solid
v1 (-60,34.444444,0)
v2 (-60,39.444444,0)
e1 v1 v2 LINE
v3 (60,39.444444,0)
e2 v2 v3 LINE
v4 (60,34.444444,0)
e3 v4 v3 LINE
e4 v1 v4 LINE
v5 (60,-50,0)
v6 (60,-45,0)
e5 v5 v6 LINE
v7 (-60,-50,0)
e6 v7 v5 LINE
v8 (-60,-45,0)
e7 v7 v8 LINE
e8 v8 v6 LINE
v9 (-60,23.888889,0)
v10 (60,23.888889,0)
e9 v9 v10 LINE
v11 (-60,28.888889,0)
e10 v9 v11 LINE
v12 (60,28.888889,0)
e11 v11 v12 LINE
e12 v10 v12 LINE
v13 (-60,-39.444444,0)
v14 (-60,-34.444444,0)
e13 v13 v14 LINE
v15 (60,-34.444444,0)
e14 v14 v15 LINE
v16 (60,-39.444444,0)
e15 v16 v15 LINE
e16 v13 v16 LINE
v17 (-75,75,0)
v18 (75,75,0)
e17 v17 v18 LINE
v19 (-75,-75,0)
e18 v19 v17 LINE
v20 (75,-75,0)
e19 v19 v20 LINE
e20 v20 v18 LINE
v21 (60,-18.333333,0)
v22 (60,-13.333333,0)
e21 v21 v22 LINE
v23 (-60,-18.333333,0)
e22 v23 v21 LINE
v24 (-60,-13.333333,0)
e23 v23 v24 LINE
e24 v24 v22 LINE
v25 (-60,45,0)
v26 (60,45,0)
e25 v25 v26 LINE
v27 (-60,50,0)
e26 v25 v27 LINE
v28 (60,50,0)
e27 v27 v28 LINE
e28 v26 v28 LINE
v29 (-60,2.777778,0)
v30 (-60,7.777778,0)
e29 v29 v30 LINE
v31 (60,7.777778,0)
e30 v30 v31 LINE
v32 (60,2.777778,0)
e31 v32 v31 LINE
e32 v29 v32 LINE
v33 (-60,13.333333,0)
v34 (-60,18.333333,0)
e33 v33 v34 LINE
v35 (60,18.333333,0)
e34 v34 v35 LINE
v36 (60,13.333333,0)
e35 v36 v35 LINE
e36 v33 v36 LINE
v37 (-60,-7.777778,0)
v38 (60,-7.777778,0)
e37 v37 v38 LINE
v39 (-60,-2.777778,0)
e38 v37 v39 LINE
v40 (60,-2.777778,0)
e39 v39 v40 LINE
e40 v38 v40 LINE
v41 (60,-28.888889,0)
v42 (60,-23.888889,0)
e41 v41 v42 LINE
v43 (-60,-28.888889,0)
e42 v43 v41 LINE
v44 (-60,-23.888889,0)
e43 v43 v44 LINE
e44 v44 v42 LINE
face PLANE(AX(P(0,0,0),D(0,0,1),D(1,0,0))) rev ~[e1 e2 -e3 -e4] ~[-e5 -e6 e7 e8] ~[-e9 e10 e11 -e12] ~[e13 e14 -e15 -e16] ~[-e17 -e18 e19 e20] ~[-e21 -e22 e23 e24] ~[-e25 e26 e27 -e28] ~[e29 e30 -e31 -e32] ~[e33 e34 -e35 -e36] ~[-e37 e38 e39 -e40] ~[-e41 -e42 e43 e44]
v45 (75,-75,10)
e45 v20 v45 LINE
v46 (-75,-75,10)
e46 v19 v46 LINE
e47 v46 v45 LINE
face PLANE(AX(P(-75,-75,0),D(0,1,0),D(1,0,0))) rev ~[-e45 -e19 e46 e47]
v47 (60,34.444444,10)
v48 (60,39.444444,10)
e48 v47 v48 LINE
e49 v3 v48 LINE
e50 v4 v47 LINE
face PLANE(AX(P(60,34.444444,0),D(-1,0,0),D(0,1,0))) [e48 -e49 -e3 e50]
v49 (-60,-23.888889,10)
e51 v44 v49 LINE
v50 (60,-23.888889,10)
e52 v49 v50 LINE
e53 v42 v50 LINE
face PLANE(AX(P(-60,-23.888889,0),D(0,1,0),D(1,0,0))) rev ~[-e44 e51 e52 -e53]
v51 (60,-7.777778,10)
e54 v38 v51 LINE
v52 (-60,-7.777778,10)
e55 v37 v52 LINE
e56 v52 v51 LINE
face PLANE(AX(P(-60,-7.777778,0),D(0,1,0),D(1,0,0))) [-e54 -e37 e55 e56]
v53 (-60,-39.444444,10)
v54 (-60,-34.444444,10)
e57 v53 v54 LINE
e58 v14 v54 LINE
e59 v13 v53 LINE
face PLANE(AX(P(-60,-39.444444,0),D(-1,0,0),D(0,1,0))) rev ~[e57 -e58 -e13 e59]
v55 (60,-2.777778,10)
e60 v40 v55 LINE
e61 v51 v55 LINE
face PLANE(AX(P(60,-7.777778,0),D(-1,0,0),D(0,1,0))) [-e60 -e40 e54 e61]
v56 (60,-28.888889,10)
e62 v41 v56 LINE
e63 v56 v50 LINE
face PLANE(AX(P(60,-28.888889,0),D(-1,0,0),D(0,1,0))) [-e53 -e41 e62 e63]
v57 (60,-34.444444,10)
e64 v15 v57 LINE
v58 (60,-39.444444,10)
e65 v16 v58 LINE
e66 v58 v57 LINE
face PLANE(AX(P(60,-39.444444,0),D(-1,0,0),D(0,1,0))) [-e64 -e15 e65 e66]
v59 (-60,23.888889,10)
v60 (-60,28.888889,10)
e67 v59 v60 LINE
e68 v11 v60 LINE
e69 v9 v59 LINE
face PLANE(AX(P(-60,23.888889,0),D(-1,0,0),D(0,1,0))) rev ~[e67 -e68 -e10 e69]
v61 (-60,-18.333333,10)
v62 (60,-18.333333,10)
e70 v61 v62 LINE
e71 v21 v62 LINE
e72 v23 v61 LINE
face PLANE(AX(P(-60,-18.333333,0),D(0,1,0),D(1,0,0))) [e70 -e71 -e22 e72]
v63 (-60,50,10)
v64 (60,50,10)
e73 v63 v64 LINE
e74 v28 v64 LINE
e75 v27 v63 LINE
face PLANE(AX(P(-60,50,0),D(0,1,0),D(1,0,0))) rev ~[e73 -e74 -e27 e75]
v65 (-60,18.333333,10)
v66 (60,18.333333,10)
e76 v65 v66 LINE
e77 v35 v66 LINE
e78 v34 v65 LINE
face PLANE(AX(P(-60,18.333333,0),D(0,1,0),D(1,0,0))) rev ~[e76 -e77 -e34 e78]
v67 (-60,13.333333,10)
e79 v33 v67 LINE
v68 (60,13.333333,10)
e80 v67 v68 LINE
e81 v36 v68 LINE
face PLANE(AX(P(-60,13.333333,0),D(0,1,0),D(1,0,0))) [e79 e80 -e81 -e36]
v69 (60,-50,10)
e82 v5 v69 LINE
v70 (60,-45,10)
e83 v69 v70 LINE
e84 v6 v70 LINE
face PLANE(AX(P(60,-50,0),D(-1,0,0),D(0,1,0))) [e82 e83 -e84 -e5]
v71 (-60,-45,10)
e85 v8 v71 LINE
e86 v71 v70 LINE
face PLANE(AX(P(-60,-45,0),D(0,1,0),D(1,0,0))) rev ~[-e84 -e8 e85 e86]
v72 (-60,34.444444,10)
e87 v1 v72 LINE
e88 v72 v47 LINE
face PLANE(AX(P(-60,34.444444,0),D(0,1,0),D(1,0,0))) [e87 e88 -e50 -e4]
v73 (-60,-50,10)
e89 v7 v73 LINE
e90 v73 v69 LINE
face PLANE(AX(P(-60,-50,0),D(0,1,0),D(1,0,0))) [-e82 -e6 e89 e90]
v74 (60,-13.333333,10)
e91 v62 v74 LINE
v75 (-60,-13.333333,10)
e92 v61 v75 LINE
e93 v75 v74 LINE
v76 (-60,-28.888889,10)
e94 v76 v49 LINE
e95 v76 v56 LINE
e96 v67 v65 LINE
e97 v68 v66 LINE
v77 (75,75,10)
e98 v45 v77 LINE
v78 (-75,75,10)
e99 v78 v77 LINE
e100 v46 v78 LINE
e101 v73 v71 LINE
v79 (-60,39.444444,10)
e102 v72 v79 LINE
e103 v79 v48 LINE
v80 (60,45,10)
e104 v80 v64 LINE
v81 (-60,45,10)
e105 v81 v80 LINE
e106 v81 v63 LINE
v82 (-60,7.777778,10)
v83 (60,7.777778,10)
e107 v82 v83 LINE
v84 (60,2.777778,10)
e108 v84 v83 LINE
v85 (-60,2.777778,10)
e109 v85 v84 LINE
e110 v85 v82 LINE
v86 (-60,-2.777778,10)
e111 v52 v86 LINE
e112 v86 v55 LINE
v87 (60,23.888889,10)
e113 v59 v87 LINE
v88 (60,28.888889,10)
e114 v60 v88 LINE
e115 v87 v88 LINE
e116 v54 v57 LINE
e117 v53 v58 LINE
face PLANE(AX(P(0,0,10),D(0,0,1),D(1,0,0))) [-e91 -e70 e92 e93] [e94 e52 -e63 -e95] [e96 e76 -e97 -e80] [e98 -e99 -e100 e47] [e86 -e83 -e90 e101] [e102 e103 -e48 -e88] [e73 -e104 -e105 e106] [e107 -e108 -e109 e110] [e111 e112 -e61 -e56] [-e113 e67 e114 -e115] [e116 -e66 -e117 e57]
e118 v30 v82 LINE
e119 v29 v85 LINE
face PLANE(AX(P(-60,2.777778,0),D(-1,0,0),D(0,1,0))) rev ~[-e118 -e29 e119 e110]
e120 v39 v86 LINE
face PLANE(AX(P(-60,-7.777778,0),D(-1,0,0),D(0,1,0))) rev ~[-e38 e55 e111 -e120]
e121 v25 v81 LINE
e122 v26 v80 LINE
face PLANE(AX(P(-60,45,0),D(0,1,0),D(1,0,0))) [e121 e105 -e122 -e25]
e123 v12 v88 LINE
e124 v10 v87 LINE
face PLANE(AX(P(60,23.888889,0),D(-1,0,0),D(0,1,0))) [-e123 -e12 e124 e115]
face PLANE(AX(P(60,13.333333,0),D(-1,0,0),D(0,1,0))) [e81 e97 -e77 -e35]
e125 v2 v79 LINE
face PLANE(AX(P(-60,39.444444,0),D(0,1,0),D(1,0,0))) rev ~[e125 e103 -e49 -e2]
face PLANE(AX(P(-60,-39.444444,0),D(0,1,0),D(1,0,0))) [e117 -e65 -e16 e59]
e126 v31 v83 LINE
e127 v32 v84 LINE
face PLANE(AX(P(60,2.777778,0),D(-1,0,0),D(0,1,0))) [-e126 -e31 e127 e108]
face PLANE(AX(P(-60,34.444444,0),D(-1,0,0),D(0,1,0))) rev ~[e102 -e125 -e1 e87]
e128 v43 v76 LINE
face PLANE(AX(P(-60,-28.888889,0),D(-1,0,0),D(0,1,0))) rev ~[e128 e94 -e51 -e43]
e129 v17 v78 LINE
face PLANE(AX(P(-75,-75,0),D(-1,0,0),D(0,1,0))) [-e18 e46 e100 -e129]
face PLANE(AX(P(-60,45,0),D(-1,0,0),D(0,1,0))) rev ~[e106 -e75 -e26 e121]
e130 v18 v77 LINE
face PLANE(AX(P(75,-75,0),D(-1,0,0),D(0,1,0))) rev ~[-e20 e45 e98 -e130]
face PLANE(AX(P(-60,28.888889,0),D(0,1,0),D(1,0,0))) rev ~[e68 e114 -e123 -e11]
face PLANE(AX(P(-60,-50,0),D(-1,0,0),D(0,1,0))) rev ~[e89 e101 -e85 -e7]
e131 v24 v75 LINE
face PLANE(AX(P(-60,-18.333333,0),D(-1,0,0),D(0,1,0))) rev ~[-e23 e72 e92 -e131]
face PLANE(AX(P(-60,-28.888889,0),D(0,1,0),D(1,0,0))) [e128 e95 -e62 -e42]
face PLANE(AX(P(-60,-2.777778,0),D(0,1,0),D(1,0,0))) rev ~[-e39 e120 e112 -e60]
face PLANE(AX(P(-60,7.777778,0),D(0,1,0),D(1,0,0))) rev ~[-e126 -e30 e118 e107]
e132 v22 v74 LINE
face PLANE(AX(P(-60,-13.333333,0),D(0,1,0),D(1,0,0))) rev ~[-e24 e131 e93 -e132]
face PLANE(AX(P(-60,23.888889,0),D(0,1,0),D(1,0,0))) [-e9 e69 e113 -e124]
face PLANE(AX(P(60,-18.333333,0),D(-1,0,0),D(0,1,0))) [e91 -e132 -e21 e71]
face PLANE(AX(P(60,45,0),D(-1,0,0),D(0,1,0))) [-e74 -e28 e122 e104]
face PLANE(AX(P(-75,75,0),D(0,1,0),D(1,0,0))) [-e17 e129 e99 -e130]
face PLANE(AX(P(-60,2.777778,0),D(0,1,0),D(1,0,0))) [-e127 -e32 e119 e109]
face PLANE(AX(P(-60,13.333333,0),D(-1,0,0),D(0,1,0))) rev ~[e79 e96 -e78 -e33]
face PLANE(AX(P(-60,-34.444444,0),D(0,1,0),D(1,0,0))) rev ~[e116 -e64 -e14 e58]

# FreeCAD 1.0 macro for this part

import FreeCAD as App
import Part
import Sketcher
from FreeCAD import Vector


def add_polygon(sketch, points):
    """Adds a closed chain of lines whose ends are joined by coincident constraints."""
    first, n = sketch.GeometryCount, len(points)
    for a, b in zip(points, points[1:] + points[:1]):
        sketch.addGeometry(Part.LineSegment(App.Vector(*a, 0), App.Vector(*b, 0)), False)
    for i in range(n):
        sketch.addConstraint(Sketcher.Constraint("Coincident", first + i, 2, first + (i + 1) % n, 1))

doc = App.newDocument("Part")
body = doc.addObject("PartDesign::Body", "Body")

# Sketch on XY plane
sketch1 = doc.addObject("Sketcher::SketchObject", "Sketch")
body.addObject(sketch1)
sketch1.AttachmentSupport = (doc.XY_Plane, [""])
sketch1.MapMode = "FlatFace"
add_polygon(sketch1, [(-75, 75), (-75, -75), (75, -75), (75, 75)])  # lines 0-3
add_polygon(sketch1, [(60, -50), (-60, -50), (-60, -45), (60, -45)])  # lines 4-7
add_polygon(sketch1, [(60, -39), (-60, -39), (-60, -34), (60, -34)])  # lines 8-11
add_polygon(sketch1, [(60, -29), (-60, -29), (-60, -24), (60, -24)])  # lines 12-15
add_polygon(sketch1, [(60, -18), (-60, -18), (-60, -13), (60, -13)])  # lines 16-19
add_polygon(sketch1, [(60, -8), (-60, -8), (-60, -3), (60, -3)])  # lines 20-23
add_polygon(sketch1, [(60, 3), (-60, 3), (-60, 8), (60, 8)])  # lines 24-27
add_polygon(sketch1, [(60, 13), (-60, 13), (-60, 18), (60, 18)])  # lines 28-31
add_polygon(sketch1, [(60, 24), (-60, 24), (-60, 29), (60, 29)])  # lines 32-35
add_polygon(sketch1, [(60, 34), (-60, 34), (-60, 39), (60, 39)])  # lines 36-39
add_polygon(sketch1, [(60, 45), (-60, 45), (-60, 50), (60, 50)])  # lines 40-43
sketch1.addConstraint([
    Sketcher.Constraint("Vertical", 0),
    Sketcher.Constraint("Horizontal", 1),
    Sketcher.Constraint("Vertical", 2),
    Sketcher.Constraint("Horizontal", 3),
    Sketcher.Constraint("Horizontal", 4),
    Sketcher.Constraint("Vertical", 5),
    Sketcher.Constraint("Horizontal", 6),
    Sketcher.Constraint("Vertical", 7),
    Sketcher.Constraint("Horizontal", 8),
    Sketcher.Constraint("Vertical", 9),
    Sketcher.Constraint("Horizontal", 10),
    Sketcher.Constraint("Vertical", 11),
    Sketcher.Constraint("Horizontal", 12),
    Sketcher.Constraint("Vertical", 13),
    Sketcher.Constraint("Horizontal", 14),
    Sketcher.Constraint("Vertical", 15),
    Sketcher.Constraint("Horizontal", 16),
    Sketcher.Constraint("Vertical", 17),
    Sketcher.Constraint("Horizontal", 18),
    Sketcher.Constraint("Vertical", 19),
    Sketcher.Constraint("Horizontal", 20),
    Sketcher.Constraint("Vertical", 21),
    Sketcher.Constraint("Horizontal", 22),
    Sketcher.Constraint("Vertical", 23),
    Sketcher.Constraint("Horizontal", 24),
    Sketcher.Constraint("Vertical", 25),
    Sketcher.Constraint("Horizontal", 26),
    Sketcher.Constraint("Vertical", 27),
    Sketcher.Constraint("Horizontal", 28),
    Sketcher.Constraint("Vertical", 29),
    Sketcher.Constraint("Horizontal", 30),
    Sketcher.Constraint("Vertical", 31),
    Sketcher.Constraint("Horizontal", 32),
    Sketcher.Constraint("Vertical", 33),
    Sketcher.Constraint("Horizontal", 34),
    Sketcher.Constraint("Vertical", 35),
    Sketcher.Constraint("Horizontal", 36),
    Sketcher.Constraint("Vertical", 37),
    Sketcher.Constraint("Horizontal", 38),
    Sketcher.Constraint("Vertical", 39),
    Sketcher.Constraint("Horizontal", 40),
    Sketcher.Constraint("Vertical", 41),
    Sketcher.Constraint("Horizontal", 42),
    Sketcher.Constraint("Vertical", 43),
    Sketcher.Constraint("Symmetric", 0, 2, 2, 2, -1, 1),
    Sketcher.Constraint("Symmetric", 22, 2, 24, 2, -1, 1),
    Sketcher.Constraint("Symmetric", 20, 2, 26, 2, -1, 1),
    Sketcher.Constraint("Symmetric", 18, 2, 28, 2, -1, 1),
    Sketcher.Constraint("Symmetric", 16, 2, 30, 2, -1, 1),
    Sketcher.Constraint("Symmetric", 14, 2, 32, 2, -1, 1),
    Sketcher.Constraint("Symmetric", 12, 2, 34, 2, -1, 1),
    Sketcher.Constraint("Symmetric", 10, 2, 36, 2, -1, 1),
    Sketcher.Constraint("Symmetric", 8, 2, 38, 2, -1, 1),
    Sketcher.Constraint("Symmetric", 6, 2, 40, 2, -1, 1),
    Sketcher.Constraint("Symmetric", 4, 2, 42, 2, -1, 1),
    Sketcher.Constraint("Vertical", 5, 2, 8, 2),
    Sketcher.Constraint("Vertical", 7, 2, 10, 2),
    Sketcher.Constraint("Vertical", 9, 2, 12, 2),
    Sketcher.Constraint("Vertical", 11, 2, 14, 2),
    Sketcher.Constraint("Vertical", 13, 2, 16, 2),
    Sketcher.Constraint("Vertical", 15, 2, 18, 2),
    Sketcher.Constraint("Vertical", 17, 2, 20, 2),
    Sketcher.Constraint("Vertical", 19, 2, 22, 2),
    Sketcher.Constraint("Vertical", 21, 2, 24, 2),
    Sketcher.Constraint("Equal", 3, 0),
    Sketcher.Constraint("Equal", 7, 9),
    Sketcher.Constraint("Equal", 11, 13),
    Sketcher.Constraint("Equal", 15, 17),
    Sketcher.Constraint("Equal", 19, 21),
    Sketcher.Constraint("DistanceX", 1, 1, 1, 2, 150.0),
    Sketcher.Constraint("DistanceX", 4, 2, 4, 1, 120.0),
    Sketcher.Constraint("DistanceY", 5, 1, 5, 2, 5.0),
    Sketcher.Constraint("DistanceY", 4, 2, -1, 1, 50.0),
    Sketcher.Constraint("DistanceY", 12, 2, -1, 1, 28.888889),
    Sketcher.Constraint("DistanceY", 21, 2, -1, 1, 2.777778),
    Sketcher.Constraint("DistanceY", 9, 2, 16, 2, 16.111111),
    Sketcher.Constraint("DistanceY", 17, 2, 24, 2, 16.111111),
])
pad1 = doc.addObject("PartDesign::Pad", "Pad")
body.addObject(pad1)
pad1.Profile = sketch1
pad1.Length = 10

doc.recompute()
